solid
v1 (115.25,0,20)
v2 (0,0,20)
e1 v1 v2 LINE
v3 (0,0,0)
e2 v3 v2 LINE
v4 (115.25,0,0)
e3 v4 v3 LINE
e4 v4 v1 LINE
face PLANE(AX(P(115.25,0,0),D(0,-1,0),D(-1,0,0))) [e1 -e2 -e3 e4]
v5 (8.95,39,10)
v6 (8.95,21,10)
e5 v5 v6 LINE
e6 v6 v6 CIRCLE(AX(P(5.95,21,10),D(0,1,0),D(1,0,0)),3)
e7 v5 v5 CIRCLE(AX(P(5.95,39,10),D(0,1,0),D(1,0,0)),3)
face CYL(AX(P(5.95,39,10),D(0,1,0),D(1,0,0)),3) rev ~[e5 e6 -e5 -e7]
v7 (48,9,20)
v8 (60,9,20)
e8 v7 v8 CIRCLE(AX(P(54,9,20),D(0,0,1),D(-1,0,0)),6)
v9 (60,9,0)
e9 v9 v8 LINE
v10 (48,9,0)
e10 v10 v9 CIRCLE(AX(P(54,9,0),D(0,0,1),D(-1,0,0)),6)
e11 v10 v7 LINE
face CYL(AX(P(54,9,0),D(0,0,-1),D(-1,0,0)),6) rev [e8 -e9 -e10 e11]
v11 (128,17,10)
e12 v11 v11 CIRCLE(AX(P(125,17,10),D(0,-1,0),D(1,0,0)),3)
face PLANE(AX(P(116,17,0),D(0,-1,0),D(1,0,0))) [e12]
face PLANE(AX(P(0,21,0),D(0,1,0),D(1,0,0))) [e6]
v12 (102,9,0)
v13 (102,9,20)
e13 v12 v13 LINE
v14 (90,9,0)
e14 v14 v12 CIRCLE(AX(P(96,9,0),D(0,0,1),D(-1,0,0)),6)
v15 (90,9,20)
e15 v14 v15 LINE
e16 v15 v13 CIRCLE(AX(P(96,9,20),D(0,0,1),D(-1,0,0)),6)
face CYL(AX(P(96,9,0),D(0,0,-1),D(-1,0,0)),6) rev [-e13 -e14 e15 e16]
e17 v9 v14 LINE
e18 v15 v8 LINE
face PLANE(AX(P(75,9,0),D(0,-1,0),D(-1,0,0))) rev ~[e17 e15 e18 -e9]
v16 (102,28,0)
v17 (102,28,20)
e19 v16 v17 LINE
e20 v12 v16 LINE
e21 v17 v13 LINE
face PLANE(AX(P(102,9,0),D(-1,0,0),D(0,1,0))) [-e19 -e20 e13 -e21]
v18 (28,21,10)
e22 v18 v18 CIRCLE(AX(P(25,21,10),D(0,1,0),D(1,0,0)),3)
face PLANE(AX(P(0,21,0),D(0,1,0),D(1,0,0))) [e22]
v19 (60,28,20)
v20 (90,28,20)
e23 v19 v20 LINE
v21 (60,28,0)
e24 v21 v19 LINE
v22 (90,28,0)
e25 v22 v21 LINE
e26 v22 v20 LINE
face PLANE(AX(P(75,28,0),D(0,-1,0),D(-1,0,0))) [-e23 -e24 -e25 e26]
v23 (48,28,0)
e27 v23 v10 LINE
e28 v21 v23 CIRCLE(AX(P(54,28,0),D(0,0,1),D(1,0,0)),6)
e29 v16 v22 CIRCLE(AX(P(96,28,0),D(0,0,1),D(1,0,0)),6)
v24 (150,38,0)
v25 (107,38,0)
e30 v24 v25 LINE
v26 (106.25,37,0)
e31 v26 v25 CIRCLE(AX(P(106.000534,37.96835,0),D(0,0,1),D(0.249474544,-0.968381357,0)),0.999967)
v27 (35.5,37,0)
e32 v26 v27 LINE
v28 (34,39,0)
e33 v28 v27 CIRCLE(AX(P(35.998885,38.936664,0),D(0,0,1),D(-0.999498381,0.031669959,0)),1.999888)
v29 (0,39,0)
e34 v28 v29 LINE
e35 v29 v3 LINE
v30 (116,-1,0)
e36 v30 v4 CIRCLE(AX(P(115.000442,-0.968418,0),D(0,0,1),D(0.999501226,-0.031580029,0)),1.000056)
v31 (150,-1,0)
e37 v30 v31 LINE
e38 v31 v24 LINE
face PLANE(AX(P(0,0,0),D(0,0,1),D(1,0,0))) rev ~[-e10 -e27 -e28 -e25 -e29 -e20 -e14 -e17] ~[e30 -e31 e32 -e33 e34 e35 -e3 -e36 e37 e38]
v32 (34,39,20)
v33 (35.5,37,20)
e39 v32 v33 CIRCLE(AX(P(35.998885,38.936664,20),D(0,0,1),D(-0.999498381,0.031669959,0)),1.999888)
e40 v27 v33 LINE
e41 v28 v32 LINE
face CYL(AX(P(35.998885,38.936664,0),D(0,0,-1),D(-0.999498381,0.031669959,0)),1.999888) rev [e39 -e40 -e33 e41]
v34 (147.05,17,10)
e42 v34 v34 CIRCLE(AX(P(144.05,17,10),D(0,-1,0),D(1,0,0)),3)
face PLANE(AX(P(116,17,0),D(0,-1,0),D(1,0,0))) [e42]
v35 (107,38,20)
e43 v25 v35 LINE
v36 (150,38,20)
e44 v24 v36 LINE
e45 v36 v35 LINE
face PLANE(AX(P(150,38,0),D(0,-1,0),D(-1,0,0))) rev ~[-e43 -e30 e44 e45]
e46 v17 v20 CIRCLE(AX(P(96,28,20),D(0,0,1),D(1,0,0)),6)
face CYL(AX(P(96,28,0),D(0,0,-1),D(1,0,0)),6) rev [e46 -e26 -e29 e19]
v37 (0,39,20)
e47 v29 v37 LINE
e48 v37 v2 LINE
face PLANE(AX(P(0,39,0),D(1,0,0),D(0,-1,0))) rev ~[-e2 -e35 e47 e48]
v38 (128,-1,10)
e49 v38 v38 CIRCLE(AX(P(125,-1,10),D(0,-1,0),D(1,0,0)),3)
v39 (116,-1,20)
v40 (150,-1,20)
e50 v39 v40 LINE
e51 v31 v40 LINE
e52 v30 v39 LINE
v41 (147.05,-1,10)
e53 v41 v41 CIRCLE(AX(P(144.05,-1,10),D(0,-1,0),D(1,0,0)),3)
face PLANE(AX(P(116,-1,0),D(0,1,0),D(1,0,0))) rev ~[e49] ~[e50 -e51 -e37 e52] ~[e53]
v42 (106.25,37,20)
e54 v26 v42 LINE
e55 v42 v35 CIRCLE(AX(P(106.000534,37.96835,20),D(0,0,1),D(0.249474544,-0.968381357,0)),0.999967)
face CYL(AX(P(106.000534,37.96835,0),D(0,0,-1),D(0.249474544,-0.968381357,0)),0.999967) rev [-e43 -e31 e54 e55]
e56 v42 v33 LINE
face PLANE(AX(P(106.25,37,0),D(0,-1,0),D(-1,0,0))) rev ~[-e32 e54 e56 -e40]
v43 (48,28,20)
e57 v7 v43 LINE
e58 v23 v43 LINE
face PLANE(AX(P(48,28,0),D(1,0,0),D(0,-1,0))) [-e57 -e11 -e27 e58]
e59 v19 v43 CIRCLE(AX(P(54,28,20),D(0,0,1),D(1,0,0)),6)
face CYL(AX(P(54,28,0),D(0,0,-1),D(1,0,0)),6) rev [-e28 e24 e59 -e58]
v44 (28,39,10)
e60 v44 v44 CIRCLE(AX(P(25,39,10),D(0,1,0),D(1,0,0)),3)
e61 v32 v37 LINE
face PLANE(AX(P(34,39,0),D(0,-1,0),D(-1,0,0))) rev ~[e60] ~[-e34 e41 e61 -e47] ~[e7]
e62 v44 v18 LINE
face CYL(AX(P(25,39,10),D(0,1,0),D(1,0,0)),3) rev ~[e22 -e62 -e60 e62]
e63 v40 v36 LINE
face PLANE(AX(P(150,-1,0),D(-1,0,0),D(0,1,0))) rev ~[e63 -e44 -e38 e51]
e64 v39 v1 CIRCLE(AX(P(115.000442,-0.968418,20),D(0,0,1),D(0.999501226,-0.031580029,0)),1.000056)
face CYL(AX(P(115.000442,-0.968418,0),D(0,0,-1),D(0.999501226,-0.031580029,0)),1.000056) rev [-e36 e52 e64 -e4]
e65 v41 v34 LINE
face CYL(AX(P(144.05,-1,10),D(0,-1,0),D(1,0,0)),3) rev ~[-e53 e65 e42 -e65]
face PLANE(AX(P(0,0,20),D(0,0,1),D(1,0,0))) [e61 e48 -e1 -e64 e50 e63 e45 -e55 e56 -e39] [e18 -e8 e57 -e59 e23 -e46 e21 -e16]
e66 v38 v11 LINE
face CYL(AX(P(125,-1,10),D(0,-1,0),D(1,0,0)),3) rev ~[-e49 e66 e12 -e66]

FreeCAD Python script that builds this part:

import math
import FreeCAD as App
import Part
import Sketcher
from FreeCAD import Vector
Q = App.Units.Quantity

doc = App.newDocument("Part")
body = doc.addObject("PartDesign::Body", "Body")

sketch1 = body.newObject("Sketcher::SketchObject", "Sketch")
sketch1.AttachmentSupport = (doc.getObject("XY_Plane"), [""])
sketch1.MapMode = "FlatFace"
sketch1.addGeometry([
    Part.ArcOfCircle(Part.Circle(Vector(106.0005, 37.9684, 0), Vector(0, 0, 1), 1.000024), math.radians(-75.552434), math.radians(1.810849)),
    Part.LineSegment(Vector(106.25, 37, 0), Vector(35.5, 37, 0)),
    Part.ArcOfCircle(Part.Circle(Vector(35.999, 38.9367, 0), Vector(0, 0, 1), 2.000002), math.radians(178.186287), math.radians(255.551719)),
    Part.LineSegment(Vector(34, 39, 0), Vector(0, 39, 0)),
    Part.LineSegment(Vector(0, 39, 0), Vector(0, 0, 0)),
    Part.LineSegment(Vector(0, 0, 0), Vector(115.25, 0, 0)),
    Part.ArcOfCircle(Part.Circle(Vector(115.0005, -0.9684, 0), Vector(0, 0, 1), 0.999999), math.radians(-1.810849), math.radians(75.552434)),
    Part.LineSegment(Vector(116, -1, 0), Vector(150, -1, 0)),
    Part.LineSegment(Vector(150, -1, 0), Vector(150, 38, 0)),
    Part.LineSegment(Vector(150, 38, 0), Vector(107, 38, 0)),
    Part.LineSegment(Vector(60, 28, 0), Vector(90, 28, 0)),
    Part.ArcOfCircle(Part.Circle(Vector(96, 28, 0), Vector(0, 0, 1), 6), math.radians(0), math.radians(180)),
    Part.LineSegment(Vector(102, 28, 0), Vector(102, 9, 0)),
    Part.ArcOfCircle(Part.Circle(Vector(96, 9, 0), Vector(0, 0, 1), 6), math.radians(180), math.radians(360)),
    Part.LineSegment(Vector(90, 9, 0), Vector(60, 9, 0)),
    Part.ArcOfCircle(Part.Circle(Vector(54, 9, 0), Vector(0, 0, 1), 6), math.radians(180), math.radians(360)),
    Part.LineSegment(Vector(48, 9, 0), Vector(48, 28, 0)),
    Part.ArcOfCircle(Part.Circle(Vector(54, 28, 0), Vector(0, 0, 1), 6), math.radians(0), math.radians(180)),
], False)
sketch1.addConstraint([
    Sketcher.Constraint("Coincident", 0, 1, 1, 1),
    Sketcher.Constraint("Coincident", 1, 2, 2, 2),
    Sketcher.Constraint("Coincident", 2, 1, 3, 1),
    Sketcher.Constraint("Coincident", 3, 2, 4, 1),
    Sketcher.Constraint("Coincident", 4, 2, 5, 1),
    Sketcher.Constraint("Coincident", 5, 2, 6, 2),
    Sketcher.Constraint("Coincident", 6, 1, 7, 1),
    Sketcher.Constraint("Coincident", 7, 2, 8, 1),
    Sketcher.Constraint("Coincident", 8, 2, 9, 1),
    Sketcher.Constraint("Coincident", 9, 2, 0, 2),
    Sketcher.Constraint("Coincident", 10, 2, 11, 2),
    Sketcher.Constraint("Tangent", 11, 1, 12, 1),
    Sketcher.Constraint("Tangent", 12, 2, 13, 2),
    Sketcher.Constraint("Coincident", 13, 1, 14, 1),
    Sketcher.Constraint("Coincident", 14, 2, 15, 2),
    Sketcher.Constraint("Tangent", 15, 1, 16, 1),
    Sketcher.Constraint("Tangent", 16, 2, 17, 2),
    Sketcher.Constraint("Coincident", 17, 1, 10, 1),
    Sketcher.Constraint("Horizontal", 1),
    Sketcher.Constraint("Horizontal", 3),
    Sketcher.Constraint("Vertical", 4),
    Sketcher.Constraint("Horizontal", 5),
    Sketcher.Constraint("Horizontal", 7),
    Sketcher.Constraint("Vertical", 8),
    Sketcher.Constraint("Horizontal", 9),
    Sketcher.Constraint("Horizontal", 10),
    Sketcher.Constraint("Vertical", 12),
    Sketcher.Constraint("Horizontal", 14),
    Sketcher.Constraint("Vertical", 16),
    Sketcher.Constraint("Coincident", 4, 2, -1, 1),
    Sketcher.Constraint("Equal", 0, 6),
    Sketcher.Constraint("Equal", 11, 13),
    Sketcher.Constraint("Equal", 13, 15),
    Sketcher.Constraint("Equal", 15, 17),
    Sketcher.Constraint("Horizontal", 13, 3, 15, 3),
    Sketcher.Constraint("Horizontal", 11, 3, 17, 3),
    Sketcher.Constraint("Horizontal", 17, 3, 10, 2),
    Sketcher.Constraint("Horizontal", 12, 2, 13, 1),
    Sketcher.Constraint("Equal", 3, 7),
    Sketcher.Constraint("Equal", 4, 8),
    Sketcher.Constraint("Radius", 0, Q("1 mm")),
    Sketcher.Constraint("Radius", 2, Q("2 mm")),
    Sketcher.Constraint("Radius", 11, Q("6 mm")),
    Sketcher.Constraint("DistanceX", 3, 2, 3, 1, Q("34 mm")),
    Sketcher.Constraint("DistanceX", 9, 2, 9, 1, Q("43 mm")),
    Sketcher.Constraint("DistanceY", 4, 2, 4, 1, Q("39 mm")),
    Sketcher.Constraint("DistanceY", 6, 1, -1, 1, Q("1 mm")),
    Sketcher.Constraint("DistanceX", -1, 1, 7, 2, Q("150 mm")),
    Sketcher.Constraint("DistanceY", 1, 2, 2, 1, Q("2 mm")),
    Sketcher.Constraint("DistanceX", 10, 1, 10, 2, Q("30 mm")),
    Sketcher.Constraint("DistanceY", 12, 2, 12, 1, Q("19 mm")),
    Sketcher.Constraint("DistanceX", -1, 1, 11, 3, Q("96 mm")),
    Sketcher.Constraint("DistanceY", -1, 1, 11, 3, Q("28 mm")),
    Sketcher.Constraint("DistanceX", 0, 3, 6, 3, Q("9 mm")),
    Sketcher.Constraint("DistanceX", 1, 2, 1, 1, Q("70.75 mm")),
    Sketcher.Constraint("DistanceX", 5, 1, 5, 2, Q("115.25 mm")),
])
pad1 = body.newObject("PartDesign::Pad", "Pad")
pad1.Profile = sketch1
pad1.Length = 20

sketch2 = body.newObject("Sketcher::SketchObject", "Sketch001")
sketch2.AttachmentSupport = (doc.getObject("XZ_Plane"), [""])
sketch2.MapMode = "FlatFace"
sketch2.AttachmentOffset = App.Placement(Vector(0, 0, 1), App.Rotation())
sketch2.addGeometry([
    Part.Circle(Vector(125, 10, 0), Vector(0, 0, 1), 3),
    Part.Circle(Vector(144.05, 10, 0), Vector(0, 0, 1), 3),
], False)
sketch2.addConstraint([
    Sketcher.Constraint("Equal", 0, 1),
    Sketcher.Constraint("Horizontal", 0, 3, 1, 3),
    Sketcher.Constraint("Diameter", 0, Q("6 mm")),
    Sketcher.Constraint("DistanceY", -1, 1, 0, 3, Q("10 mm")),
    Sketcher.Constraint("DistanceX", 0, 3, 1, 3, Q("19.05 mm")),
    Sketcher.Constraint("DistanceX", -1, 1, 0, 3, Q("125 mm")),
])
pocket1 = body.newObject("PartDesign::Pocket", "Pocket")
pocket1.Profile = sketch2
pocket1.Length = 18

sketch3 = body.newObject("Sketcher::SketchObject", "Sketch002")
sketch3.AttachmentSupport = (doc.getObject("XZ_Plane"), [""])
sketch3.MapMode = "FlatFace"
sketch3.AttachmentOffset = App.Placement(Vector(0, 0, -39), App.Rotation())
sketch3.addGeometry([
    Part.Circle(Vector(5.95, 10, 0), Vector(0, 0, 1), 3),
    Part.Circle(Vector(25, 10, 0), Vector(0, 0, 1), 3),
], False)
sketch3.addConstraint([
    Sketcher.Constraint("Equal", 0, 1),
    Sketcher.Constraint("Horizontal", 0, 3, 1, 3),
    Sketcher.Constraint("Diameter", 0, Q("6 mm")),
    Sketcher.Constraint("DistanceY", -1, 1, 0, 3, Q("10 mm")),
    Sketcher.Constraint("DistanceX", 0, 3, 1, 3, Q("19.05 mm")),
    Sketcher.Constraint("DistanceX", -1, 1, 1, 3, Q("25 mm")),
])
pocket2 = body.newObject("PartDesign::Pocket", "Pocket001")
pocket2.Profile = sketch3
pocket2.Length = 18
pocket2.Reversed = True

doc.recompute()
